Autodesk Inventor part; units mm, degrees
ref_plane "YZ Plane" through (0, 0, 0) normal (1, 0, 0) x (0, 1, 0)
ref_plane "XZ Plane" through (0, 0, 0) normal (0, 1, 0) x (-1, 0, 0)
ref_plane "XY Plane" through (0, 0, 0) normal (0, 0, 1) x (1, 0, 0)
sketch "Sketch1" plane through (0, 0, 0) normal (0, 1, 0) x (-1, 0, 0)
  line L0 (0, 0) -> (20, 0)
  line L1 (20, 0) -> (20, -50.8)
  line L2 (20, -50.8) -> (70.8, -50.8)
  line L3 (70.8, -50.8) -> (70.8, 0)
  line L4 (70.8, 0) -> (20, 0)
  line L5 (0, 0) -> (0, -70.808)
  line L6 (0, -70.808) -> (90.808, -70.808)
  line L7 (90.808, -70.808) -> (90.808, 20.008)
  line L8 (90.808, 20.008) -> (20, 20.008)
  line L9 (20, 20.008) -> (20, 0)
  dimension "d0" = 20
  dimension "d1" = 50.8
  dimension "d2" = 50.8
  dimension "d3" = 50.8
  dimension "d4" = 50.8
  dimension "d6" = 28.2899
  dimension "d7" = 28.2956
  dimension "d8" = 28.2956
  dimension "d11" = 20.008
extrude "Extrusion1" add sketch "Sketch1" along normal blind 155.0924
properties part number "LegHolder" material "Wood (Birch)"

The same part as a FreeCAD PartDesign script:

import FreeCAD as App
import Part
import Sketcher
Q = App.Units.Quantity


def add_polygon(sketch, points):
    """Adds a closed chain of lines whose ends are joined by coincident constraints."""
    first, n = sketch.GeometryCount, len(points)
    for a, b in zip(points, points[1:] + points[:1]):
        sketch.addGeometry(Part.LineSegment(App.Vector(*a, 0), App.Vector(*b, 0)), False)
    for i in range(n):
        sketch.addConstraint(Sketcher.Constraint("Coincident", first + i, 2, first + (i + 1) % n, 1))

doc = App.newDocument("Part")
body = doc.addObject("PartDesign::Body", "Body")

# Sketch on XZ plane
sketch1 = doc.addObject("Sketcher::SketchObject", "Sketch")
body.addObject(sketch1)
sketch1.AttachmentSupport = (doc.XZ_Plane, [""])
sketch1.MapMode = "FlatFace"
add_polygon(sketch1, [(-20, 0), (0, 0), (0, -71), (-91, -71), (-91, 20), (-20, 20)])  # lines 0-5
add_polygon(sketch1, [(-20, -51), (-20, 0), (-71, 0), (-71, -51)])  # lines 6-9
sketch1.addConstraint(Sketcher.Constraint("Horizontal", 0))
sketch1.addConstraint(Sketcher.Constraint("Vertical", 1))
sketch1.addConstraint(Sketcher.Constraint("Horizontal", 2))
sketch1.addConstraint(Sketcher.Constraint("Vertical", 3))
sketch1.addConstraint(Sketcher.Constraint("Horizontal", 4))
sketch1.addConstraint(Sketcher.Constraint("Vertical", 5))
sketch1.addConstraint(Sketcher.Constraint("Vertical", 6))
sketch1.addConstraint(Sketcher.Constraint("Horizontal", 7))
sketch1.addConstraint(Sketcher.Constraint("Vertical", 8))
sketch1.addConstraint(Sketcher.Constraint("Horizontal", 9))
sketch1.addConstraint(Sketcher.Constraint("Coincident", 0, 2, -1, 1))
sketch1.addConstraint(Sketcher.Constraint("Coincident", 6, 2, 5, 2))
sketch1.addConstraint(Sketcher.Constraint("Equal", 4, 1))
sketch1.addConstraint(Sketcher.Constraint("Equal", 9, 6))
sketch1.addConstraint(Sketcher.Constraint("DistanceX", 7, 2, 7, 1, Q("2 in")))
sketch1.addConstraint(Sketcher.Constraint("DistanceX", 0, 1, 0, 2, Q("0.7874 in")))
sketch1.addConstraint(Sketcher.Constraint("DistanceY", 5, 2, 5, 1, Q("20.008 mm")))
sketch1.addConstraint(Sketcher.Constraint("DistanceX", 3, 2, 7, 2, Q("20.008 mm")))
pad1 = doc.addObject("PartDesign::Pad", "Pad")
body.addObject(pad1)
pad1.Profile = sketch1
pad1.Length = Q("6.106 in")
pad1.Reversed = True

doc.recompute()
